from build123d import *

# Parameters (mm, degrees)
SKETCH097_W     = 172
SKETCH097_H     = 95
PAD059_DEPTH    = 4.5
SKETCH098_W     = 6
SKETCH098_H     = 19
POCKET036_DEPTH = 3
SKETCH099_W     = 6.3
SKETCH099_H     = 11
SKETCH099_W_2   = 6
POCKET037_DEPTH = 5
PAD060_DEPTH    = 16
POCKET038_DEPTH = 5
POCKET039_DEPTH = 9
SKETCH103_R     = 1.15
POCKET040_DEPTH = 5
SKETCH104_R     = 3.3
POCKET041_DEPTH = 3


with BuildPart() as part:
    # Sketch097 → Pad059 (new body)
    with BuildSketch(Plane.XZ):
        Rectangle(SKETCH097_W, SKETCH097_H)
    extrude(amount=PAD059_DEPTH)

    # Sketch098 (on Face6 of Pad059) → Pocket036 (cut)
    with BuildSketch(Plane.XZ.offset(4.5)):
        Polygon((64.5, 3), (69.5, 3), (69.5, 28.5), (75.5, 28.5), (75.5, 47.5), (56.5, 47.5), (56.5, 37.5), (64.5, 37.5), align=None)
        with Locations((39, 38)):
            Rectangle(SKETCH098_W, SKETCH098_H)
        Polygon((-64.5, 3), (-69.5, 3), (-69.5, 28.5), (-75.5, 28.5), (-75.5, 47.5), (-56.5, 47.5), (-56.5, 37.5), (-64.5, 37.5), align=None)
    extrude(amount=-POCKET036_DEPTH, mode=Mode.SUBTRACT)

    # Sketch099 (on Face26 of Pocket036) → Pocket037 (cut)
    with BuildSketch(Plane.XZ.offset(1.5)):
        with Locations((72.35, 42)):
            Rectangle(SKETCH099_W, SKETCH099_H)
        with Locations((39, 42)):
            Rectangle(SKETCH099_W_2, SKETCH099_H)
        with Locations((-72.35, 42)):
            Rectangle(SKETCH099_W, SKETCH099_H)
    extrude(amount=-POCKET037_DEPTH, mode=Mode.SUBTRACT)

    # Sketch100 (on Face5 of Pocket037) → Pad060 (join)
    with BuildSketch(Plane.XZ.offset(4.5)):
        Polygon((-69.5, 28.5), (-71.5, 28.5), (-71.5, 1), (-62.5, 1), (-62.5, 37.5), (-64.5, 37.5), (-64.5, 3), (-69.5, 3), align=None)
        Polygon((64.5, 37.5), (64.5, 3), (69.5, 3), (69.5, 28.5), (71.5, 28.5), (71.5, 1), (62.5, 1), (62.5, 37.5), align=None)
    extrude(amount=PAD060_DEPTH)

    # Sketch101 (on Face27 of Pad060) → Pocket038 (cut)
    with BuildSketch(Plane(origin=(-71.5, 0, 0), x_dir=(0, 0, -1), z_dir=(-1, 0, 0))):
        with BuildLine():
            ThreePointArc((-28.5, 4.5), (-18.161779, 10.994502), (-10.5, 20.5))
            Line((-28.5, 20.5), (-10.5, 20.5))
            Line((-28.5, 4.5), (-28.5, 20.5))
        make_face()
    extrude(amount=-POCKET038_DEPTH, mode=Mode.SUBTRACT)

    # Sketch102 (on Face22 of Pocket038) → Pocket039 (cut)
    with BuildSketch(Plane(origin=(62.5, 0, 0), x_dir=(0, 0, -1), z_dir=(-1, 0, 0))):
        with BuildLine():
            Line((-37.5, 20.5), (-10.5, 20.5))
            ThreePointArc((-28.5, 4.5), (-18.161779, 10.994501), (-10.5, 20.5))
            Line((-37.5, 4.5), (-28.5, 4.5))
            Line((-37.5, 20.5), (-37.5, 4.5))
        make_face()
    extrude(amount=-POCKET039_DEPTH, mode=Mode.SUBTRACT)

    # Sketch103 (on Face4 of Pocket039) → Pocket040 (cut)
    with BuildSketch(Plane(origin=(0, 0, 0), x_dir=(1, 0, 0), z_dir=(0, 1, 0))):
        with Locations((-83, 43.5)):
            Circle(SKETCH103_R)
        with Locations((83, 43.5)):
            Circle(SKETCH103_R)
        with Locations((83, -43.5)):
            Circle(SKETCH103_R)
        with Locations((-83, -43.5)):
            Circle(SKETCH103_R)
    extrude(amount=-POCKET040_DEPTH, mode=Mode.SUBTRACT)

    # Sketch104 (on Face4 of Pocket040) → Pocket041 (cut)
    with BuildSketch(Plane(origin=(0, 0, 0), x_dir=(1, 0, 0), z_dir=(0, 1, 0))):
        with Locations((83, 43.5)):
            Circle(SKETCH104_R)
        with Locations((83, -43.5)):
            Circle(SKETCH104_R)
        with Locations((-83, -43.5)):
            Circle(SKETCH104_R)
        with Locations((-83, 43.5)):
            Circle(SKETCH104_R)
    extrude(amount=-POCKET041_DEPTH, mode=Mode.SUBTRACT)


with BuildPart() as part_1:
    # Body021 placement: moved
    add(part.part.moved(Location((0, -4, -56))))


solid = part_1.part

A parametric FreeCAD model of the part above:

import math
import FreeCAD as App
import Part
import Sketcher
from FreeCAD import Vector


def add_polygon(sketch, points):
    """Adds a closed chain of lines whose ends are joined by coincident constraints."""
    first, n = sketch.GeometryCount, len(points)
    for a, b in zip(points, points[1:] + points[:1]):
        sketch.addGeometry(Part.LineSegment(App.Vector(*a, 0), App.Vector(*b, 0)), False)
    for i in range(n):
        sketch.addConstraint(Sketcher.Constraint("Coincident", first + i, 2, first + (i + 1) % n, 1))

doc = App.newDocument("Part")
body = doc.addObject("PartDesign::Body", "Body")

sketch1 = doc.addObject("Sketcher::SketchObject", "Sketch")
body.addObject(sketch1)
sketch1.AttachmentSupport = (doc.XZ_Plane, [""])
sketch1.MapMode = "FlatFace"
add_polygon(sketch1, [(-86, 48), (-86, -48), (86, -48), (86, 48)])
sketch1.addConstraint(Sketcher.Constraint("Vertical", 0))
sketch1.addConstraint(Sketcher.Constraint("Horizontal", 1))
sketch1.addConstraint(Sketcher.Constraint("Vertical", 2))
sketch1.addConstraint(Sketcher.Constraint("Horizontal", 3))
sketch1.addConstraint(Sketcher.Constraint("Symmetric", 0, 2, 2, 2, -1, 1))
sketch1.addConstraint(Sketcher.Constraint("DistanceX", 1, 1, 1, 2, 172.0))
sketch1.addConstraint(Sketcher.Constraint("DistanceY", 0, 2, 0, 1, 95.0))
pad1 = doc.addObject("PartDesign::Pad", "Pad")
body.addObject(pad1)
pad1.Profile = sketch1
pad1.Length = 4.5

sketch2 = doc.addObject("Sketcher::SketchObject", "Sketch001")
body.addObject(sketch2)
sketch2.AttachmentSupport = (doc.XZ_Plane, [""])
sketch2.MapMode = "FlatFace"
sketch2.AttachmentOffset = App.Placement(Vector(0, 0, 4.5), App.Rotation())
add_polygon(sketch2, [(64, 3), (70, 3), (70, 28), (76, 28), (76, 48), (56, 48), (56, 38), (64, 38)])
add_polygon(sketch2, [(36, 48), (36, 28), (42, 28), (42, 48)])
add_polygon(sketch2, [(-70, 3), (-64, 3), (-64, 38), (-56, 38), (-56, 48), (-76, 48), (-76, 28), (-70, 28)])
sketch2.addConstraint(Sketcher.Constraint("Horizontal", 0))
sketch2.addConstraint(Sketcher.Constraint("Vertical", 1))
sketch2.addConstraint(Sketcher.Constraint("Horizontal", 2))
sketch2.addConstraint(Sketcher.Constraint("Vertical", 3))
sketch2.addConstraint(Sketcher.Constraint("Horizontal", 4))
sketch2.addConstraint(Sketcher.Constraint("Vertical", 5))
sketch2.addConstraint(Sketcher.Constraint("Horizontal", 6))
sketch2.addConstraint(Sketcher.Constraint("Vertical", 7))
sketch2.addConstraint(Sketcher.Constraint("Vertical", 8))
sketch2.addConstraint(Sketcher.Constraint("Horizontal", 9))
sketch2.addConstraint(Sketcher.Constraint("Vertical", 10))
sketch2.addConstraint(Sketcher.Constraint("Horizontal", 11))
sketch2.addConstraint(Sketcher.Constraint("Horizontal", 12))
sketch2.addConstraint(Sketcher.Constraint("Vertical", 13))
sketch2.addConstraint(Sketcher.Constraint("Horizontal", 14))
sketch2.addConstraint(Sketcher.Constraint("Vertical", 15))
sketch2.addConstraint(Sketcher.Constraint("Horizontal", 16))
sketch2.addConstraint(Sketcher.Constraint("Vertical", 17))
sketch2.addConstraint(Sketcher.Constraint("Horizontal", 18))
sketch2.addConstraint(Sketcher.Constraint("Vertical", 19))
sketch2.addConstraint(Sketcher.Constraint("Symmetric", 7, 2, 12, 2, -2))
sketch2.addConstraint(Sketcher.Constraint("Symmetric", 5, 2, 14, 2, -2))
sketch2.addConstraint(Sketcher.Constraint("Symmetric", 3, 2, 16, 2, -2))
sketch2.addConstraint(Sketcher.Constraint("Symmetric", 1, 2, 18, 2, -2))
sketch2.addConstraint(Sketcher.Constraint("Horizontal", 2, 2, 8, 2))
sketch2.addConstraint(Sketcher.Constraint("Horizontal", 4, 2, 10, 2))
sketch2.addConstraint(Sketcher.Constraint("Equal", 2, 9))
sketch2.addConstraint(Sketcher.Constraint("Equal", 16, 3))
sketch2.addConstraint(Sketcher.Constraint("DistanceX", 0, 1, 0, 2, 5.0))
sketch2.addConstraint(Sketcher.Constraint("DistanceX", 2, 1, 2, 2, 6.0))
sketch2.addConstraint(Sketcher.Constraint("DistanceX", 4, 2, 4, 1, 19.0))
sketch2.addConstraint(Sketcher.Constraint("DistanceY", 5, 2, 5, 1, 10.0))
sketch2.addConstraint(Sketcher.Constraint("DistanceY", 1, 1, 1, 2, 25.5))
sketch2.addConstraint(Sketcher.Constraint("DistanceY", -1, 1, 0, 2, 3.0))
sketch2.addConstraint(Sketcher.Constraint("DistanceX", -1, 1, 8, 2, 36.0))
sketch2.addConstraint(Sketcher.Constraint("DistanceX", 12, 2, 5, 2, 121.0))
pocket1 = doc.addObject("PartDesign::Pocket", "Pocket")
body.addObject(pocket1)
pocket1.Profile = sketch2
pocket1.Length = 3

sketch3 = doc.addObject("Sketcher::SketchObject", "Sketch002")
body.addObject(sketch3)
sketch3.AttachmentSupport = (doc.XZ_Plane, [""])
sketch3.MapMode = "FlatFace"
sketch3.AttachmentOffset = App.Placement(Vector(0, 0, 1.5), App.Rotation())
add_polygon(sketch3, [(69, 48), (69, 36), (76, 36), (76, 48)])
add_polygon(sketch3, [(36, 48), (36, 36), (42, 36), (42, 48)])
add_polygon(sketch3, [(-76, 48), (-76, 36), (-69, 36), (-69, 48)])
sketch3.addConstraint(Sketcher.Constraint("Vertical", 0))
sketch3.addConstraint(Sketcher.Constraint("Horizontal", 1))
sketch3.addConstraint(Sketcher.Constraint("Vertical", 2))
sketch3.addConstraint(Sketcher.Constraint("Horizontal", 3))
sketch3.addConstraint(Sketcher.Constraint("Vertical", 4))
sketch3.addConstraint(Sketcher.Constraint("Horizontal", 5))
sketch3.addConstraint(Sketcher.Constraint("Vertical", 6))
sketch3.addConstraint(Sketcher.Constraint("Horizontal", 7))
sketch3.addConstraint(Sketcher.Constraint("Vertical", 8))
sketch3.addConstraint(Sketcher.Constraint("Horizontal", 9))
sketch3.addConstraint(Sketcher.Constraint("Vertical", 10))
sketch3.addConstraint(Sketcher.Constraint("Horizontal", 11))
sketch3.addConstraint(Sketcher.Constraint("Symmetric", 1, 2, 8, 2, -2))
sketch3.addConstraint(Sketcher.Constraint("Symmetric", 3, 2, 10, 2, -2))
sketch3.addConstraint(Sketcher.Constraint("Horizontal", 1, 2, 4, 2))
sketch3.addConstraint(Sketcher.Constraint("Horizontal", 3, 2, 6, 2))
sketch3.addConstraint(Sketcher.Constraint("DistanceX", 5, 1, 5, 2, 6.0))
sketch3.addConstraint(Sketcher.Constraint("DistanceY", 0, 2, 0, 1, 11.0))
sketch3.addConstraint(Sketcher.Constraint("DistanceX", 1, 1, 1, 2, 6.3))
sketch3.addConstraint(Sketcher.Constraint("DistanceX", -1, 1, 4, 2, 36.0))
sketch3.addConstraint(Sketcher.Constraint("DistanceX", -1, 1, 0, 2, 69.2))
sketch3.addConstraint(Sketcher.Constraint("DistanceY", -1, 1, 0, 2, 36.5))
pocket2 = doc.addObject("PartDesign::Pocket", "Pocket001")
body.addObject(pocket2)
pocket2.Profile = sketch3
pocket2.Length = 5

sketch4 = doc.addObject("Sketcher::SketchObject", "Sketch003")
body.addObject(sketch4)
sketch4.AttachmentSupport = (doc.XZ_Plane, [""])
sketch4.MapMode = "FlatFace"
sketch4.AttachmentOffset = App.Placement(Vector(0, 0, 4.5), App.Rotation())
add_polygon(sketch4, [(-69.5, 28.5), (-71.5, 28.5), (-71.5, 1), (-62.5, 1), (-62.5, 37.5), (-64.5, 37.5), (-64.5, 3), (-69.5, 3)])
add_polygon(sketch4, [(64.5, 3), (64.5, 37.5), (62.5, 37.5), (62.5, 1), (71.5, 1), (71.5, 28.5), (69.5, 28.5), (69.5, 3)])
sketch4.addConstraint(Sketcher.Constraint("Horizontal", 0))
sketch4.addConstraint(Sketcher.Constraint("Vertical", 1))
sketch4.addConstraint(Sketcher.Constraint("Horizontal", 2))
sketch4.addConstraint(Sketcher.Constraint("Vertical", 3))
sketch4.addConstraint(Sketcher.Constraint("Horizontal", 4))
sketch4.addConstraint(Sketcher.Constraint("Vertical", 5))
sketch4.addConstraint(Sketcher.Constraint("Horizontal", 6))
sketch4.addConstraint(Sketcher.Constraint("Vertical", 7))
sketch4.addConstraint(Sketcher.Constraint("Vertical", 8))
sketch4.addConstraint(Sketcher.Constraint("Horizontal", 9))
sketch4.addConstraint(Sketcher.Constraint("Vertical", 10))
sketch4.addConstraint(Sketcher.Constraint("Horizontal", 11))
sketch4.addConstraint(Sketcher.Constraint("Vertical", 12))
sketch4.addConstraint(Sketcher.Constraint("Horizontal", 13))
sketch4.addConstraint(Sketcher.Constraint("Vertical", 14))
sketch4.addConstraint(Sketcher.Constraint("Horizontal", 15))
sketch4.addConstraint(Sketcher.Constraint("Symmetric", 4, 2, 8, 2, -2))
sketch4.addConstraint(Sketcher.Constraint("Symmetric", 2, 2, 10, 2, -2))
sketch4.addConstraint(Sketcher.Constraint("Symmetric", 0, 2, 12, 2, -2))
sketch4.addConstraint(Sketcher.Constraint("Symmetric", 6, 2, 14, 2, -2))
sketch4.addConstraint(Sketcher.Constraint("Equal", 0, 4))
sketch4.addConstraint(Sketcher.Constraint("DistanceX", 0, 2, 0, 1, 2.0))
sketch4.addConstraint(Sketcher.Constraint("DistanceX", 2, 1, 2, 2, 9.0))
sketch4.addConstraint(Sketcher.Constraint("DistanceY", 1, 2, 1, 1, 27.5))
sketch4.addConstraint(Sketcher.Constraint("DistanceY", 3, 1, 3, 2, 36.5))
sketch4.addConstraint(Sketcher.Constraint("DistanceY", 5, 2, 5, 1, 34.5))
sketch4.addConstraint(Sketcher.Constraint("DistanceY", -1, 1, 1, 2, 1.0))
sketch4.addConstraint(Sketcher.Constraint("DistanceX", 3, 2, 8, 2, 127.0))
pad2 = doc.addObject("PartDesign::Pad", "Pad001")
body.addObject(pad2)
pad2.Profile = sketch4
pad2.Length = 16

sketch5 = doc.addObject("Sketcher::SketchObject", "Sketch004")
body.addObject(sketch5)
sketch5.AttachmentSupport = (doc.YZ_Plane, [""])
sketch5.MapMode = "FlatFace"
sketch5.AttachmentOffset = App.Placement(Vector(0, 0, -71.5), App.Rotation())
sketch5.addGeometry(Part.ArcOfCircle(Part.Circle(Vector(-39, 43, 0), Vector(0, 0, 1), 37), math.radians(-61), math.radians(-23)), False)
sketch5.addGeometry(Part.LineSegment(Vector(-20, 10, 0), Vector(-20, 28, 0)), False)
sketch5.addGeometry(Part.LineSegment(Vector(-20, 28, 0), Vector(-4, 28, 0)), False)
sketch5.addConstraint(Sketcher.Constraint("Coincident", 0, 1, 1, 1))
sketch5.addConstraint(Sketcher.Constraint("Coincident", 1, 2, 2, 1))
sketch5.addConstraint(Sketcher.Constraint("Coincident", 2, 2, 0, 2))
sketch5.addConstraint(Sketcher.Constraint("Vertical", 1))
sketch5.addConstraint(Sketcher.Constraint("Horizontal", 2))
sketch5.addConstraint(Sketcher.Constraint("DistanceX", 2, 1, 2, 2, 16.0))
sketch5.addConstraint(Sketcher.Constraint("DistanceY", 1, 1, 1, 2, 18.0))
sketch5.addConstraint(Sketcher.Constraint("DistanceX", 0, 1, -1, 1, 20.5))
sketch5.addConstraint(Sketcher.Constraint("DistanceY", -1, 1, 0, 1, 10.5))
sketch5.addConstraint(Sketcher.Constraint("Radius", 0, 36.999996))
pocket3 = doc.addObject("PartDesign::Pocket", "Pocket002")
body.addObject(pocket3)
pocket3.Profile = sketch5
pocket3.Length = 5
pocket3.Reversed = True

sketch6 = doc.addObject("Sketcher::SketchObject", "Sketch005")
body.addObject(sketch6)
sketch6.AttachmentSupport = (doc.YZ_Plane, [""])
sketch6.MapMode = "FlatFace"
sketch6.AttachmentOffset = App.Placement(Vector(0, 0, 62.5), App.Rotation())
sketch6.addGeometry(Part.LineSegment(Vector(-20, 10, 0), Vector(-20, 38, 0)), False)
sketch6.addGeometry(Part.LineSegment(Vector(-20, 38, 0), Vector(-4, 38, 0)), False)
sketch6.addGeometry(Part.LineSegment(Vector(-4, 38, 0), Vector(-4, 28, 0)), False)
sketch6.addGeometry(Part.ArcOfCircle(Part.Circle(Vector(-39, 43, 0), Vector(0, 0, 1), 37), math.radians(-61), math.radians(-23)), False)
sketch6.addConstraint(Sketcher.Constraint("Coincident", 0, 2, 1, 1))
sketch6.addConstraint(Sketcher.Constraint("Coincident", 1, 2, 2, 1))
sketch6.addConstraint(Sketcher.Constraint("Coincident", 2, 2, 3, 2))
sketch6.addConstraint(Sketcher.Constraint("Coincident", 3, 1, 0, 1))
sketch6.addConstraint(Sketcher.Constraint("Vertical", 0))
sketch6.addConstraint(Sketcher.Constraint("Horizontal", 1))
sketch6.addConstraint(Sketcher.Constraint("Vertical", 2))
sketch6.addConstraint(Sketcher.Constraint("DistanceX", 1, 1, 1, 2, 16.0))
sketch6.addConstraint(Sketcher.Constraint("DistanceY", 0, 1, 0, 2, 27.0))
sketch6.addConstraint(Sketcher.Constraint("DistanceY", 2, 2, 2, 1, 9.0))
sketch6.addConstraint(Sketcher.Constraint("DistanceX", 0, 2, -1, 1, 20.5))
sketch6.addConstraint(Sketcher.Constraint("DistanceY", -1, 1, 0, 2, 37.5))
sketch6.addConstraint(Sketcher.Constraint("Radius", 3, 36.999983))
pocket4 = doc.addObject("PartDesign::Pocket", "Pocket003")
body.addObject(pocket4)
pocket4.Profile = sketch6
pocket4.Length = 9
pocket4.Reversed = True

sketch7 = doc.addObject("Sketcher::SketchObject", "Sketch006")
body.addObject(sketch7)
sketch7.AttachmentSupport = (doc.XZ_Plane, [""])
sketch7.MapMode = "FlatFace"
sketch7.addGeometry(Part.Circle(Vector(-83, -43.5, 0), Vector(0, 0, 1), 1.1), False)
sketch7.addGeometry(Part.Circle(Vector(83, -43.5, 0), Vector(0, 0, 1), 1.1), False)
sketch7.addGeometry(Part.Circle(Vector(83, 43.5, 0), Vector(0, 0, 1), 1.1), False)
sketch7.addGeometry(Part.Circle(Vector(-83, 43.5, 0), Vector(0, 0, 1), 1.1), False)
sketch7.addConstraint(Sketcher.Constraint("Equal", 0, 1))
sketch7.addConstraint(Sketcher.Constraint("Equal", 1, 2))
sketch7.addConstraint(Sketcher.Constraint("Equal", 2, 3))
sketch7.addConstraint(Sketcher.Constraint("Symmetric", 0, 3, 2, 3, -1, 1))
sketch7.addConstraint(Sketcher.Constraint("Symmetric", 1, 3, 3, 3, -1, 1))
sketch7.addConstraint(Sketcher.Constraint("Symmetric", 0, 3, 1, 3, -2))
sketch7.addConstraint(Sketcher.Constraint("Diameter", 0, 2.3))
sketch7.addConstraint(Sketcher.Constraint("DistanceX", 0, 3, -1, 1, 83.0))
sketch7.addConstraint(Sketcher.Constraint("DistanceY", 1, 3, 2, 3, 87.0))
pocket5 = doc.addObject("PartDesign::Pocket", "Pocket004")
body.addObject(pocket5)
pocket5.Profile = sketch7
pocket5.Length = 5
pocket5.Reversed = True

sketch8 = doc.addObject("Sketcher::SketchObject", "Sketch007")
body.addObject(sketch8)
sketch8.AttachmentSupport = (doc.XZ_Plane, [""])
sketch8.MapMode = "FlatFace"
sketch8.addGeometry(Part.Circle(Vector(83, -43.5, 0), Vector(0, 0, 1), 3.3), False)
sketch8.addGeometry(Part.Circle(Vector(83, 43.5, 0), Vector(0, 0, 1), 3.3), False)
sketch8.addGeometry(Part.Circle(Vector(-83, 43.5, 0), Vector(0, 0, 1), 3.3), False)
sketch8.addGeometry(Part.Circle(Vector(-83, -43.5, 0), Vector(0, 0, 1), 3.3), False)
sketch8.addConstraint(Sketcher.Constraint("Equal", 0, 1))
sketch8.addConstraint(Sketcher.Constraint("Equal", 1, 2))
sketch8.addConstraint(Sketcher.Constraint("Equal", 2, 3))
sketch8.addConstraint(Sketcher.Constraint("Symmetric", 0, 3, 2, 3, -1, 1))
sketch8.addConstraint(Sketcher.Constraint("Symmetric", 1, 3, 3, 3, -1, 1))
sketch8.addConstraint(Sketcher.Constraint("Symmetric", 1, 3, 2, 3, -2))
sketch8.addConstraint(Sketcher.Constraint("Diameter", 0, 6.6))
sketch8.addConstraint(Sketcher.Constraint("DistanceX", -1, 1, 0, 3, 83.0))
sketch8.addConstraint(Sketcher.Constraint("DistanceY", 0, 3, 1, 3, 87.0))
pocket6 = doc.addObject("PartDesign::Pocket", "Pocket005")
body.addObject(pocket6)
pocket6.Profile = sketch8
pocket6.Length = 3
pocket6.Reversed = True
body2 = doc.addObject("PartDesign::Body", "Body001")
doc.recompute()

body.Placement = App.Placement(Vector(0, -4, -56), App.Rotation(Vector(0, 0, 1), 0))
boolean = doc.addObject("PartDesign::Boolean", "Boolean")
body2.addObject(boolean)
boolean.Type = "Fuse"
boolean.addObjects([body])

doc.recompute()
